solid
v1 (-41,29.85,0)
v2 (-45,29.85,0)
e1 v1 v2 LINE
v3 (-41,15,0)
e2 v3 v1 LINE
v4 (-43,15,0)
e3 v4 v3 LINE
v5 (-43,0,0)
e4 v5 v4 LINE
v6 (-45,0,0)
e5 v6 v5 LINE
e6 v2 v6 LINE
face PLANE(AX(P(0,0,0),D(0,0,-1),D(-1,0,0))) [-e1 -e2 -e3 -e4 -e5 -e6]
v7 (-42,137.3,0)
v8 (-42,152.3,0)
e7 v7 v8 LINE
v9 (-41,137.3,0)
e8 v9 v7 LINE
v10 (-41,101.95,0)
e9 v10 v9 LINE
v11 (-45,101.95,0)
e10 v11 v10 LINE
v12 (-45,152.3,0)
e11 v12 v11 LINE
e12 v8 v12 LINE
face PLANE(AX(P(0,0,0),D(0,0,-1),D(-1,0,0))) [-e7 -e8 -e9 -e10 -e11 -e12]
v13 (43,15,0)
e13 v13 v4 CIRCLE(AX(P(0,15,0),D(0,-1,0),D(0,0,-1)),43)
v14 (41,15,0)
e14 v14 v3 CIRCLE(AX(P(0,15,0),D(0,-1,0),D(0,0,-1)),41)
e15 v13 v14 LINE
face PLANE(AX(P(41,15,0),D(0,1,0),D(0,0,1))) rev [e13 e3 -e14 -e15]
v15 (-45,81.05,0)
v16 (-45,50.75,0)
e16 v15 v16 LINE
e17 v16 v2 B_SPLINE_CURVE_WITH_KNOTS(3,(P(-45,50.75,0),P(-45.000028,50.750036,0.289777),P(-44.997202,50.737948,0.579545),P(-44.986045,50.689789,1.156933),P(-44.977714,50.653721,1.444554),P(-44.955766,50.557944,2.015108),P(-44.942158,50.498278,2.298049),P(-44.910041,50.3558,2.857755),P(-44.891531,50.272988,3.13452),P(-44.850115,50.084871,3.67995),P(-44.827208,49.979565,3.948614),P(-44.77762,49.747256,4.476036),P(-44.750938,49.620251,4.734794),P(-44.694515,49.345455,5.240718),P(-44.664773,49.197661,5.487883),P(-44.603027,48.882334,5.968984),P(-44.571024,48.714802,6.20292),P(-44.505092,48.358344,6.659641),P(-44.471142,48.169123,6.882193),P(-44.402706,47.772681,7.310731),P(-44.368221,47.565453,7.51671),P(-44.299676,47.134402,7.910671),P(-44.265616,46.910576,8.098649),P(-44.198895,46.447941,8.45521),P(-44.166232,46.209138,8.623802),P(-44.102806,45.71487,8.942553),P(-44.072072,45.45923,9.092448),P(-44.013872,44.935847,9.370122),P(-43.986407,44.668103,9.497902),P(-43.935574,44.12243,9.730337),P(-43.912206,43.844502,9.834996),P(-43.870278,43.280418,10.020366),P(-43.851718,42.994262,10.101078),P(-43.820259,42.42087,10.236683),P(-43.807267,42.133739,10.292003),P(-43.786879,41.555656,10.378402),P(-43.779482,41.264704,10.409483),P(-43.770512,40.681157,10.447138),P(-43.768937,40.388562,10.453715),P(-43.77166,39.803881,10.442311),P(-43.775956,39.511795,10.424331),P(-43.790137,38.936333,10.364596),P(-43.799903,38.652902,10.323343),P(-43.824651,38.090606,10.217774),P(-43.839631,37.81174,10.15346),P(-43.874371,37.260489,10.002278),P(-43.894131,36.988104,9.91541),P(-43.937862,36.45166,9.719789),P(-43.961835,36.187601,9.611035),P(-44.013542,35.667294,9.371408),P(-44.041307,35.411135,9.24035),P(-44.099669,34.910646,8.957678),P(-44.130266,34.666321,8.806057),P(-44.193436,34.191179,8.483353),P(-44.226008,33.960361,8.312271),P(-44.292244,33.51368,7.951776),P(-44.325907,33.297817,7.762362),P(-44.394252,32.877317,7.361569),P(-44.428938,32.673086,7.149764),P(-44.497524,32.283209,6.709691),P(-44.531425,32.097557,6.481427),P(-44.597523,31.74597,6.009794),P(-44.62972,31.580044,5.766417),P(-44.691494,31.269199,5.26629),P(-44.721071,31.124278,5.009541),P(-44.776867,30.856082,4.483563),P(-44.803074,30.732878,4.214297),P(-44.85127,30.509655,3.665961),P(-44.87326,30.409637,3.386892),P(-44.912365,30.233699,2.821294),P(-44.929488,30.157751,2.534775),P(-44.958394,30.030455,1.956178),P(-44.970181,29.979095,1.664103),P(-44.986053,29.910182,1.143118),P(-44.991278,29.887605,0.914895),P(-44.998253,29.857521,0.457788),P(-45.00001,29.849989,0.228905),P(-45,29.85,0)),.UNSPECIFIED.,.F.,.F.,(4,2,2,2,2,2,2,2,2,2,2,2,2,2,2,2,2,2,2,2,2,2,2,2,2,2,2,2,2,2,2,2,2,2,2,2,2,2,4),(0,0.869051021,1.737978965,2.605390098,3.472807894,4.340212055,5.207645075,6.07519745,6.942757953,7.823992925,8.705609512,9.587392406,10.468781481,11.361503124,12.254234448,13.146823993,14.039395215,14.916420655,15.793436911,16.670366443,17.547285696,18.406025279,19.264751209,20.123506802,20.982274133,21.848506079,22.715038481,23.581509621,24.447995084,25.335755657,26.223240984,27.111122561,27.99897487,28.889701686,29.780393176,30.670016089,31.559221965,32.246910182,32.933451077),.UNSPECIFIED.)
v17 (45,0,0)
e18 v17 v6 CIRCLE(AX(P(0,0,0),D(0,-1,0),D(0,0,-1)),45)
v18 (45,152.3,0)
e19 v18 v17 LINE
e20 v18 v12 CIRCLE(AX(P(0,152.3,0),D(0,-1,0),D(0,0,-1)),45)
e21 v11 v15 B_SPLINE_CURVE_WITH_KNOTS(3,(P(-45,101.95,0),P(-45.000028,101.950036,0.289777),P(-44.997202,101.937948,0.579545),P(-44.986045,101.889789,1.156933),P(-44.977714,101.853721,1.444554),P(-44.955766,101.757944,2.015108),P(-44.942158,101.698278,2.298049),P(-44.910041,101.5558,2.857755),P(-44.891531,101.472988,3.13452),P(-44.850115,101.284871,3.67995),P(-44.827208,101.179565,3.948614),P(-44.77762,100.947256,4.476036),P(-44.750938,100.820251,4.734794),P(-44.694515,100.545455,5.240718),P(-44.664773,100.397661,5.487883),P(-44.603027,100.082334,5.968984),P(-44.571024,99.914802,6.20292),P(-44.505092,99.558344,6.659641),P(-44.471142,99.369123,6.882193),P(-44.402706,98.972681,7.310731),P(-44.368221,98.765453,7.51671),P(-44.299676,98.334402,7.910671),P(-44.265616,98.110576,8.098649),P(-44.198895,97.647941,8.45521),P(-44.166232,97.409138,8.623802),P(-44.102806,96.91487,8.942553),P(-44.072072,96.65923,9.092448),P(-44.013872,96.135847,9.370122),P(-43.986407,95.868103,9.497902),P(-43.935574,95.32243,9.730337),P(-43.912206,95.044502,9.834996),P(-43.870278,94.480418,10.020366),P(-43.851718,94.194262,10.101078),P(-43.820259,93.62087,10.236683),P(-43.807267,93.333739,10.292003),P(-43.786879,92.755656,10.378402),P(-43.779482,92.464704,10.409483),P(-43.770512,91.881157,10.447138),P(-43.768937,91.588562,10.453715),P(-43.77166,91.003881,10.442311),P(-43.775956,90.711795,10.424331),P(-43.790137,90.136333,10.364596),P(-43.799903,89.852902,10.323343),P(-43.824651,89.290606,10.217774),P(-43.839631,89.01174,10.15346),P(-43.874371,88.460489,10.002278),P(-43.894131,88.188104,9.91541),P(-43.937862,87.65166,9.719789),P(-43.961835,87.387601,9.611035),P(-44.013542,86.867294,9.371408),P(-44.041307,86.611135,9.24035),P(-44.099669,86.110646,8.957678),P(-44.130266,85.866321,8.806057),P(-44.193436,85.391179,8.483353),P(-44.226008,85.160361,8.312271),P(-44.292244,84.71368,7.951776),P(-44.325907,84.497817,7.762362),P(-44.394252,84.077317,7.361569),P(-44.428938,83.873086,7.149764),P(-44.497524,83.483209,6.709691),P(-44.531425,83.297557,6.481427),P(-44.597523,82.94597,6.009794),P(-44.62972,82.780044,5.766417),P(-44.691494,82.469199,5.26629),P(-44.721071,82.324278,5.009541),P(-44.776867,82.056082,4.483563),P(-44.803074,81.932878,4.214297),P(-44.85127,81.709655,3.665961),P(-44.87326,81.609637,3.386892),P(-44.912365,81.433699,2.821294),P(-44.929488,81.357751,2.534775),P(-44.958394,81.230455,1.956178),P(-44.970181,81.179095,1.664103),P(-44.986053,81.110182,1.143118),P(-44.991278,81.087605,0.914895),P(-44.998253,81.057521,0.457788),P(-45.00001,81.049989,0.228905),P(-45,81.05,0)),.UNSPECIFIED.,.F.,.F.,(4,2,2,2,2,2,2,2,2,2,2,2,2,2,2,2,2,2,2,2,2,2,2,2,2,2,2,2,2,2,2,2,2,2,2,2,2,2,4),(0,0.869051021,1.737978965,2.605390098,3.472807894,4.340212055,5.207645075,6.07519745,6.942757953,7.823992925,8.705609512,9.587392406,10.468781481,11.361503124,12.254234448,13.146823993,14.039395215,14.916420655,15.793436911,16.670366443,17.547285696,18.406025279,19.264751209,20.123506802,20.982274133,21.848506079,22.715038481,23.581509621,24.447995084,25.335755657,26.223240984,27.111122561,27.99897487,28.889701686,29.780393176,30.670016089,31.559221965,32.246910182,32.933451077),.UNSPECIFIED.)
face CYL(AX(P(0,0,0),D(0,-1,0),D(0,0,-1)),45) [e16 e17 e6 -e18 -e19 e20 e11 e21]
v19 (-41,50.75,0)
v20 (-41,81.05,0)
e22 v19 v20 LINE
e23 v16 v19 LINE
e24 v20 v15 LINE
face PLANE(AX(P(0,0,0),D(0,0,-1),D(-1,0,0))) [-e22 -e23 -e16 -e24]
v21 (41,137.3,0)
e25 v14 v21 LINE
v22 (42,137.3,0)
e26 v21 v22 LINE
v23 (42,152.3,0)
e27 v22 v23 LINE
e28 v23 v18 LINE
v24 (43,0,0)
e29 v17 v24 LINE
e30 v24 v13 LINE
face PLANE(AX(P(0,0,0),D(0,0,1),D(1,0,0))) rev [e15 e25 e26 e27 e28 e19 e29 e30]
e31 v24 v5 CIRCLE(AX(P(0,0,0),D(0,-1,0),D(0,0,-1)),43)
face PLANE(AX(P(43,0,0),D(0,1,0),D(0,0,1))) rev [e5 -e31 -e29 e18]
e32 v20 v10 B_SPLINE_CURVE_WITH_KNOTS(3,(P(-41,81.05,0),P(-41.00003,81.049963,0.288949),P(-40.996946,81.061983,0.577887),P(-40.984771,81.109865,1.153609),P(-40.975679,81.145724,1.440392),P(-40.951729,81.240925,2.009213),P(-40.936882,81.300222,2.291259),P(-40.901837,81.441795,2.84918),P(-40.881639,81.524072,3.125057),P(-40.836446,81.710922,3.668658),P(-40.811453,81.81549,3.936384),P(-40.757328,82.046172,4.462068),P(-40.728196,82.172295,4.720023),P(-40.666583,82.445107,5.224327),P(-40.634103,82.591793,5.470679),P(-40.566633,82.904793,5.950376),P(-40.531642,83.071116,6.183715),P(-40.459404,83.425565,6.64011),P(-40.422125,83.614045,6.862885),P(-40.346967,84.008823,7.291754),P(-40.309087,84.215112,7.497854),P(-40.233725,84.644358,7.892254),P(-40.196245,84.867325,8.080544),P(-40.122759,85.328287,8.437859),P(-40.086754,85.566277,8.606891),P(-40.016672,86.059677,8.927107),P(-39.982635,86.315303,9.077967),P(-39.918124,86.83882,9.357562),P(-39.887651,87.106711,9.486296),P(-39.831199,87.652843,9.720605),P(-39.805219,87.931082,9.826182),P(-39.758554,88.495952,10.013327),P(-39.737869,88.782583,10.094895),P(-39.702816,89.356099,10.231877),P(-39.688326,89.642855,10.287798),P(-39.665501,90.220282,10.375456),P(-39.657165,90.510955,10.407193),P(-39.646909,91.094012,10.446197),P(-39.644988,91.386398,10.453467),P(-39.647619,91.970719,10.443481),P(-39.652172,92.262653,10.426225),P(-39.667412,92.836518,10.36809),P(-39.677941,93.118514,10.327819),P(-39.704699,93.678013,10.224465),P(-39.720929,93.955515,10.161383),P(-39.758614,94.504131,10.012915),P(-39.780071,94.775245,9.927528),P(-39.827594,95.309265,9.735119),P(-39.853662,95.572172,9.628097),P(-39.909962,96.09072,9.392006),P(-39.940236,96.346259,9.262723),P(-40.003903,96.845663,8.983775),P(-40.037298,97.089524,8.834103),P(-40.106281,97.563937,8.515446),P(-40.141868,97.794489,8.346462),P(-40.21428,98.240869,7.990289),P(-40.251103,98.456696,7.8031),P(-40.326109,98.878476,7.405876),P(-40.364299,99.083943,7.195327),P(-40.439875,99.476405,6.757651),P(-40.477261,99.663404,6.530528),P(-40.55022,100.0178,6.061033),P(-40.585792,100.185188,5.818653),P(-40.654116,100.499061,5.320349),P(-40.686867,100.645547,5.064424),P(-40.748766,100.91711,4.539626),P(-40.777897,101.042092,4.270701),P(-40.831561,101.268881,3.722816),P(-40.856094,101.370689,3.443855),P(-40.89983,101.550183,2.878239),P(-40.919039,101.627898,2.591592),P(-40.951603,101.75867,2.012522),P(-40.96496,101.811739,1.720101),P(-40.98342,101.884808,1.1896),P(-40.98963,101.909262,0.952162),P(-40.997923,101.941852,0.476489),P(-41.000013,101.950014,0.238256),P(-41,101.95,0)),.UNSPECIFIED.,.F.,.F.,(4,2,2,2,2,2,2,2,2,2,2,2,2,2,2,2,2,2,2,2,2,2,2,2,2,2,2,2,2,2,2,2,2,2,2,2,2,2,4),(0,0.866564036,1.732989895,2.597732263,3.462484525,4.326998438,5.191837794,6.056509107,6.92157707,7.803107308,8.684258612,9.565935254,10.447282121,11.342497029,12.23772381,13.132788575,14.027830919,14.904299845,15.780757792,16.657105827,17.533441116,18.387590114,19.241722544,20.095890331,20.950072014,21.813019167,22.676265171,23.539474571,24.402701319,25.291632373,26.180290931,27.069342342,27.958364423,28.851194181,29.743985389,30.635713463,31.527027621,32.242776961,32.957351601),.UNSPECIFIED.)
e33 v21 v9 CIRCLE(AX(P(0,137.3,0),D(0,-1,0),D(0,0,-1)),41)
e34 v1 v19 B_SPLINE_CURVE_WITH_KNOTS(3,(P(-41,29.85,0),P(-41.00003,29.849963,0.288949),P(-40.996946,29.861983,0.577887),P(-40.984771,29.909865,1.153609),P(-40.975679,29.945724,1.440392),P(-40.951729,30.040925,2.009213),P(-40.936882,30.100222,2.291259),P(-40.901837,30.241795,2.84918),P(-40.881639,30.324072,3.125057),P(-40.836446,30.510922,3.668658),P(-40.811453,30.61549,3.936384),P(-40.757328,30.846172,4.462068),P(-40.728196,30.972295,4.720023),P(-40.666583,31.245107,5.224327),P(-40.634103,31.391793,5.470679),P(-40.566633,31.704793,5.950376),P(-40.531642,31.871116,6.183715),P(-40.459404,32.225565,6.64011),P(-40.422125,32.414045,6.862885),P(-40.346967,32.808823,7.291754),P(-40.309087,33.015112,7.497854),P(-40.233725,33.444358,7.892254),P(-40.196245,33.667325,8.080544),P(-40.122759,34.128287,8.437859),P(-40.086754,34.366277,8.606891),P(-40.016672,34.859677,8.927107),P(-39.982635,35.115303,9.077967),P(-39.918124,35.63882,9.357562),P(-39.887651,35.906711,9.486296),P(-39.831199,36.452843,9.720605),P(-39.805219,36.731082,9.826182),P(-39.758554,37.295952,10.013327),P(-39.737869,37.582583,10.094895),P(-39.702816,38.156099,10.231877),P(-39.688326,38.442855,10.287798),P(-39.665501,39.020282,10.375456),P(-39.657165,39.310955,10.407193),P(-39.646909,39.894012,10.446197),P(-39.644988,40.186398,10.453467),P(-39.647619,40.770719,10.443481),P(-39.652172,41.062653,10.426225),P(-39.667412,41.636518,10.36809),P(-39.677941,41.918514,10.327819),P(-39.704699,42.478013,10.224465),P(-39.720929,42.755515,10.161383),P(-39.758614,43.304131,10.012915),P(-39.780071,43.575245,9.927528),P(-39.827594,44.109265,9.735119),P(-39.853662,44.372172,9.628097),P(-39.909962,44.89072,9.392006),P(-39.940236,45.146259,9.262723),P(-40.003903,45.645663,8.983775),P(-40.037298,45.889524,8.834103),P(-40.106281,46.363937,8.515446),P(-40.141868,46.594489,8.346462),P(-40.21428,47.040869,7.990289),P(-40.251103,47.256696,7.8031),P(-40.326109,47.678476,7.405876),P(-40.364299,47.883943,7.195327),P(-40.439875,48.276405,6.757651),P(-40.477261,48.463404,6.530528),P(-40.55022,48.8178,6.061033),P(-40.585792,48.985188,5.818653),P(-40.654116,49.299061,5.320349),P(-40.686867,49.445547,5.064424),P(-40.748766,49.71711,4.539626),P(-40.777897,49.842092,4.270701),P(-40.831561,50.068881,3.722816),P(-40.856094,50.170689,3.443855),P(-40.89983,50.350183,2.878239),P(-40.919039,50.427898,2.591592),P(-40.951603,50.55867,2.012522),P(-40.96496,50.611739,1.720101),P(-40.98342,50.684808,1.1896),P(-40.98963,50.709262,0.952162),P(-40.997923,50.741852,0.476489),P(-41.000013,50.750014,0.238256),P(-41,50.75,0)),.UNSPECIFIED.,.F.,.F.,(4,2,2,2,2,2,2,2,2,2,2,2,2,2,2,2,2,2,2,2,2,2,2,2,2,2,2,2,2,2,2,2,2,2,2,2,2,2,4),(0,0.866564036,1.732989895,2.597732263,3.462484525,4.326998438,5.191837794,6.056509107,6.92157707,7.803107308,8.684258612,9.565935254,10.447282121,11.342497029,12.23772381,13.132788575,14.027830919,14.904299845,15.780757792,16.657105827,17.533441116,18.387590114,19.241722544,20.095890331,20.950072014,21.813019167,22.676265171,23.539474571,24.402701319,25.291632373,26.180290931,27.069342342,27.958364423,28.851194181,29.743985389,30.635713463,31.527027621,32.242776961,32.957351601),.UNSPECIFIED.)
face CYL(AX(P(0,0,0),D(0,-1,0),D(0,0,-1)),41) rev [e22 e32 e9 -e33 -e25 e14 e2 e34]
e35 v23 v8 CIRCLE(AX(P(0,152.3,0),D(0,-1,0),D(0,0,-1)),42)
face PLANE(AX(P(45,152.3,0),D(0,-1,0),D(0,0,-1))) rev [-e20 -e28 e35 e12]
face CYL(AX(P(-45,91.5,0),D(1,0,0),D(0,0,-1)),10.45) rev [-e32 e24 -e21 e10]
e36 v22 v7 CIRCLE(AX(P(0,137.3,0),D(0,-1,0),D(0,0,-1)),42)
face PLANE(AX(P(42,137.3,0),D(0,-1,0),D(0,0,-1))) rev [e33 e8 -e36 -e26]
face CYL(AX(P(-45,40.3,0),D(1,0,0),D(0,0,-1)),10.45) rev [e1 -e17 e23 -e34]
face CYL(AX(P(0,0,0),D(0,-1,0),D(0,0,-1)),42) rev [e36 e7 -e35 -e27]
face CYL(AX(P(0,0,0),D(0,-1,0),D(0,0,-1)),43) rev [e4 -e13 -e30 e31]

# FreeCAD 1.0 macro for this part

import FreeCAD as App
import Part
import Sketcher
Q = App.Units.Quantity

doc = App.newDocument("Part")
body = doc.addObject("PartDesign::Body", "Body")

sketch1 = body.newObject("Sketcher::SketchObject", "Sketch")
sketch1.AttachmentSupport = (doc.getObject("XY_Plane"), [""])
sketch1.MapMode = "FlatFace"
sketch1.addGeometry([
    Part.LineSegment(App.Vector(-45, 152.3, 0), App.Vector(-45, 0, 0)),
    Part.LineSegment(App.Vector(-45, 0, 0), App.Vector(-43, 0, 0)),
    Part.LineSegment(App.Vector(-43, 0, 0), App.Vector(-43, 15, 0)),
    Part.LineSegment(App.Vector(-43, 15, 0), App.Vector(-41, 15, 0)),
    Part.LineSegment(App.Vector(-41, 15, 0), App.Vector(-41, 137.3, 0)),
    Part.LineSegment(App.Vector(-41, 137.3, 0), App.Vector(-42, 137.3, 0)),
    Part.LineSegment(App.Vector(-42, 137.3, 0), App.Vector(-42, 152.3, 0)),
    Part.LineSegment(App.Vector(-42, 152.3, 0), App.Vector(-45, 152.3, 0)),
], False)
sketch1.addConstraint([
    Sketcher.Constraint("Coincident", 0, 2, 1, 1),
    Sketcher.Constraint("Coincident", 1, 2, 2, 1),
    Sketcher.Constraint("Coincident", 2, 2, 3, 1),
    Sketcher.Constraint("Coincident", 3, 2, 4, 1),
    Sketcher.Constraint("Coincident", 4, 2, 5, 1),
    Sketcher.Constraint("Coincident", 5, 2, 6, 1),
    Sketcher.Constraint("Coincident", 6, 2, 7, 1),
    Sketcher.Constraint("Coincident", 7, 2, 0, 1),
    Sketcher.Constraint("Vertical", 0),
    Sketcher.Constraint("Horizontal", 1),
    Sketcher.Constraint("Vertical", 2),
    Sketcher.Constraint("Horizontal", 3),
    Sketcher.Constraint("Vertical", 4),
    Sketcher.Constraint("Horizontal", 5),
    Sketcher.Constraint("Vertical", 6),
    Sketcher.Constraint("Horizontal", 7),
    Sketcher.Constraint("PointOnObject", 0, 2, -1),
    Sketcher.Constraint("Equal", 1, 3),
    Sketcher.Constraint("Equal", 2, 6),
    Sketcher.Constraint("DistanceX", 1, 1, 1, 2, Q("2 mm")),
    Sketcher.Constraint("DistanceX", 5, 2, 5, 1, Q("1 mm")),
    Sketcher.Constraint("DistanceY", 2, 1, 2, 2, Q("15 mm")),
    Sketcher.Constraint("DistanceY", 0, 2, 0, 1, Q("152.3 mm")),
    Sketcher.Constraint("DistanceX", 0, 2, -1, 1, Q("45 mm")),
])
revolution = body.newObject("PartDesign::Revolution", "Revolution")
revolution.Profile = sketch1
revolution.ReferenceAxis = (sketch1, ["V_Axis"])
revolution.Angle = 180

sketch2 = body.newObject("Sketcher::SketchObject", "Sketch001")
sketch2.AttachmentSupport = (doc.getObject("YZ_Plane"), [""])
sketch2.MapMode = "FlatFace"
sketch2.addGeometry([
    Part.Circle(App.Vector(40, 0, 0), App.Vector(0, 0, 1), 10),
    Part.Circle(App.Vector(92, 0, 0), App.Vector(0, 0, 1), 10),
], False)
sketch2.addConstraint([
    Sketcher.Constraint("Equal", 0, 1),
    Sketcher.Constraint("PointOnObject", 0, 3, -1),
    Sketcher.Constraint("PointOnObject", 1, 3, -1),
    Sketcher.Constraint("Diameter", 0, Q("20.9 mm")),
    Sketcher.Constraint("DistanceX", -1, 1, 0, 3, Q("40.3 mm")),
    Sketcher.Constraint("DistanceX", -1, 1, 1, 3, Q("91.5 mm")),
])
pocket1 = body.newObject("PartDesign::Pocket", "Pocket")
pocket1.Profile = sketch2
pocket1.Type = "ThroughAll"

doc.recompute()
